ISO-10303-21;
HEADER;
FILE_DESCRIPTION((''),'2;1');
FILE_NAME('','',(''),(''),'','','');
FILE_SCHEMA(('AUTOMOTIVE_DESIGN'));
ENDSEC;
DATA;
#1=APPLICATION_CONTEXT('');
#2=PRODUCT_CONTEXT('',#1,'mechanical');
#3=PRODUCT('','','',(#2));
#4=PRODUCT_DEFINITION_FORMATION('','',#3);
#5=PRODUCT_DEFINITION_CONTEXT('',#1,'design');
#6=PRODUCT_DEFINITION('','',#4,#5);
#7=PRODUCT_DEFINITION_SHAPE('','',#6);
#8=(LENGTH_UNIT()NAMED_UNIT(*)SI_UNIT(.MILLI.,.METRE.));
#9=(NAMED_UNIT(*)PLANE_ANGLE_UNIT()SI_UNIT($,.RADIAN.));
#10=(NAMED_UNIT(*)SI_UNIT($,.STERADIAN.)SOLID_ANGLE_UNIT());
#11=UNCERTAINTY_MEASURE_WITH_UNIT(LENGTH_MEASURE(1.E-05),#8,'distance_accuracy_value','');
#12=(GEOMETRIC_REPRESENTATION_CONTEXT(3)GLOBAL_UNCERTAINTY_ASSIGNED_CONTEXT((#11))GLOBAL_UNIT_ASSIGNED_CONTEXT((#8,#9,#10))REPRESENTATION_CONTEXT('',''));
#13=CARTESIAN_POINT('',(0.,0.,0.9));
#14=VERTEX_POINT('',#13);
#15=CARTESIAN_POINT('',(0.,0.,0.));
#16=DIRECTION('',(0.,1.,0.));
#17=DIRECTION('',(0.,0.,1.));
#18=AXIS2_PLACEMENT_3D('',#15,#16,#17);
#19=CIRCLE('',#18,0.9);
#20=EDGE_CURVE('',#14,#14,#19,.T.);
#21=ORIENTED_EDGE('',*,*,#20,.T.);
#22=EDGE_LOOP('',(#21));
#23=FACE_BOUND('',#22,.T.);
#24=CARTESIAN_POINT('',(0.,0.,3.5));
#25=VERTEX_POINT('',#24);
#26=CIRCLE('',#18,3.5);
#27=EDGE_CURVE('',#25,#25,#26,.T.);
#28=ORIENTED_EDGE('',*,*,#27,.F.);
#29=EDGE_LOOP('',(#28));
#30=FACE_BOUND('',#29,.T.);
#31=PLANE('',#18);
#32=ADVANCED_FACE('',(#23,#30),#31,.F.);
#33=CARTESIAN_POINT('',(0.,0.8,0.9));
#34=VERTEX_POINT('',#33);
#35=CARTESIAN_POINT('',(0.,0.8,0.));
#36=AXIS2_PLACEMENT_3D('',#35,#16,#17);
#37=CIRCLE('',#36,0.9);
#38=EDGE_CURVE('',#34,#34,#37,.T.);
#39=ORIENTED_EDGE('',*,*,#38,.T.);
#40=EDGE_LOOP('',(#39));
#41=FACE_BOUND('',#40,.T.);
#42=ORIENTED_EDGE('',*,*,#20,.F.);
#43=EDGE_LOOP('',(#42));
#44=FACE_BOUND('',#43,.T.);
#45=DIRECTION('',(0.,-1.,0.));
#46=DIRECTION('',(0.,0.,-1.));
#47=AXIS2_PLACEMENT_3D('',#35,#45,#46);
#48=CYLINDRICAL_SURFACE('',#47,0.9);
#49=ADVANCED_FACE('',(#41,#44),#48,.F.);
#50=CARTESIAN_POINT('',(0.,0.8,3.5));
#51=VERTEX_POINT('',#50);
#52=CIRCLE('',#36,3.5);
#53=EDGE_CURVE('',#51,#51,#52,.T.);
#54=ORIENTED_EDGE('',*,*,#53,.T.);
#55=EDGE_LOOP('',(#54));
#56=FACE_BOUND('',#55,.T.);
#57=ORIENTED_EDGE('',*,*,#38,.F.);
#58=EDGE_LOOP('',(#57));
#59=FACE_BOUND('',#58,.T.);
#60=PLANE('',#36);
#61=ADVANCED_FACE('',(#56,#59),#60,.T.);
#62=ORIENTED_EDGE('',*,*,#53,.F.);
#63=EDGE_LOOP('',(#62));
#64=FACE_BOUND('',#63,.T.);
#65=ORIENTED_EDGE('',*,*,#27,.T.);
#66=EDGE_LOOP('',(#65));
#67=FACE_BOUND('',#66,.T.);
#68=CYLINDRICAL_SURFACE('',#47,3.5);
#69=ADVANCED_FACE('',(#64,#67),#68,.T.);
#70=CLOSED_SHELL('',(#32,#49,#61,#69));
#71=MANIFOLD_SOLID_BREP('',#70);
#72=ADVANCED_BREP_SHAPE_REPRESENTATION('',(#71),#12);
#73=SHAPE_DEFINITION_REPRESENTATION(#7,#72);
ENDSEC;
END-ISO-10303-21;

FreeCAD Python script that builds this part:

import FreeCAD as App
import Part
import Sketcher
Q = App.Units.Quantity

doc = App.newDocument("Part")
body = doc.addObject("PartDesign::Body", "Body")

sketch1 = body.newObject("Sketcher::SketchObject", "Sketch")
sketch1.AttachmentSupport = (doc.getObject("XZ_Plane"), [""])
sketch1.MapMode = "FlatFace"
sketch1.addGeometry([
    Part.Circle(App.Vector(0, 0, 0), App.Vector(0, 0, 1), 3.5),
    Part.Circle(App.Vector(0, 0, 0), App.Vector(0, 0, 1), 0.9),
], False)
sketch1.addConstraint([
    Sketcher.Constraint("Coincident", 0, 3, -1, 1),
    Sketcher.Constraint("Coincident", 1, 3, -1, 1),
    Sketcher.Constraint("Diameter", 0, Q("7 mm")),
    Sketcher.Constraint("Diameter", 1, Q("1.8 mm")),
])
pad1 = body.newObject("PartDesign::Pad", "Pad")
pad1.Profile = sketch1
pad1.Length = 0.8
pad1.Reversed = True

doc.recompute()
